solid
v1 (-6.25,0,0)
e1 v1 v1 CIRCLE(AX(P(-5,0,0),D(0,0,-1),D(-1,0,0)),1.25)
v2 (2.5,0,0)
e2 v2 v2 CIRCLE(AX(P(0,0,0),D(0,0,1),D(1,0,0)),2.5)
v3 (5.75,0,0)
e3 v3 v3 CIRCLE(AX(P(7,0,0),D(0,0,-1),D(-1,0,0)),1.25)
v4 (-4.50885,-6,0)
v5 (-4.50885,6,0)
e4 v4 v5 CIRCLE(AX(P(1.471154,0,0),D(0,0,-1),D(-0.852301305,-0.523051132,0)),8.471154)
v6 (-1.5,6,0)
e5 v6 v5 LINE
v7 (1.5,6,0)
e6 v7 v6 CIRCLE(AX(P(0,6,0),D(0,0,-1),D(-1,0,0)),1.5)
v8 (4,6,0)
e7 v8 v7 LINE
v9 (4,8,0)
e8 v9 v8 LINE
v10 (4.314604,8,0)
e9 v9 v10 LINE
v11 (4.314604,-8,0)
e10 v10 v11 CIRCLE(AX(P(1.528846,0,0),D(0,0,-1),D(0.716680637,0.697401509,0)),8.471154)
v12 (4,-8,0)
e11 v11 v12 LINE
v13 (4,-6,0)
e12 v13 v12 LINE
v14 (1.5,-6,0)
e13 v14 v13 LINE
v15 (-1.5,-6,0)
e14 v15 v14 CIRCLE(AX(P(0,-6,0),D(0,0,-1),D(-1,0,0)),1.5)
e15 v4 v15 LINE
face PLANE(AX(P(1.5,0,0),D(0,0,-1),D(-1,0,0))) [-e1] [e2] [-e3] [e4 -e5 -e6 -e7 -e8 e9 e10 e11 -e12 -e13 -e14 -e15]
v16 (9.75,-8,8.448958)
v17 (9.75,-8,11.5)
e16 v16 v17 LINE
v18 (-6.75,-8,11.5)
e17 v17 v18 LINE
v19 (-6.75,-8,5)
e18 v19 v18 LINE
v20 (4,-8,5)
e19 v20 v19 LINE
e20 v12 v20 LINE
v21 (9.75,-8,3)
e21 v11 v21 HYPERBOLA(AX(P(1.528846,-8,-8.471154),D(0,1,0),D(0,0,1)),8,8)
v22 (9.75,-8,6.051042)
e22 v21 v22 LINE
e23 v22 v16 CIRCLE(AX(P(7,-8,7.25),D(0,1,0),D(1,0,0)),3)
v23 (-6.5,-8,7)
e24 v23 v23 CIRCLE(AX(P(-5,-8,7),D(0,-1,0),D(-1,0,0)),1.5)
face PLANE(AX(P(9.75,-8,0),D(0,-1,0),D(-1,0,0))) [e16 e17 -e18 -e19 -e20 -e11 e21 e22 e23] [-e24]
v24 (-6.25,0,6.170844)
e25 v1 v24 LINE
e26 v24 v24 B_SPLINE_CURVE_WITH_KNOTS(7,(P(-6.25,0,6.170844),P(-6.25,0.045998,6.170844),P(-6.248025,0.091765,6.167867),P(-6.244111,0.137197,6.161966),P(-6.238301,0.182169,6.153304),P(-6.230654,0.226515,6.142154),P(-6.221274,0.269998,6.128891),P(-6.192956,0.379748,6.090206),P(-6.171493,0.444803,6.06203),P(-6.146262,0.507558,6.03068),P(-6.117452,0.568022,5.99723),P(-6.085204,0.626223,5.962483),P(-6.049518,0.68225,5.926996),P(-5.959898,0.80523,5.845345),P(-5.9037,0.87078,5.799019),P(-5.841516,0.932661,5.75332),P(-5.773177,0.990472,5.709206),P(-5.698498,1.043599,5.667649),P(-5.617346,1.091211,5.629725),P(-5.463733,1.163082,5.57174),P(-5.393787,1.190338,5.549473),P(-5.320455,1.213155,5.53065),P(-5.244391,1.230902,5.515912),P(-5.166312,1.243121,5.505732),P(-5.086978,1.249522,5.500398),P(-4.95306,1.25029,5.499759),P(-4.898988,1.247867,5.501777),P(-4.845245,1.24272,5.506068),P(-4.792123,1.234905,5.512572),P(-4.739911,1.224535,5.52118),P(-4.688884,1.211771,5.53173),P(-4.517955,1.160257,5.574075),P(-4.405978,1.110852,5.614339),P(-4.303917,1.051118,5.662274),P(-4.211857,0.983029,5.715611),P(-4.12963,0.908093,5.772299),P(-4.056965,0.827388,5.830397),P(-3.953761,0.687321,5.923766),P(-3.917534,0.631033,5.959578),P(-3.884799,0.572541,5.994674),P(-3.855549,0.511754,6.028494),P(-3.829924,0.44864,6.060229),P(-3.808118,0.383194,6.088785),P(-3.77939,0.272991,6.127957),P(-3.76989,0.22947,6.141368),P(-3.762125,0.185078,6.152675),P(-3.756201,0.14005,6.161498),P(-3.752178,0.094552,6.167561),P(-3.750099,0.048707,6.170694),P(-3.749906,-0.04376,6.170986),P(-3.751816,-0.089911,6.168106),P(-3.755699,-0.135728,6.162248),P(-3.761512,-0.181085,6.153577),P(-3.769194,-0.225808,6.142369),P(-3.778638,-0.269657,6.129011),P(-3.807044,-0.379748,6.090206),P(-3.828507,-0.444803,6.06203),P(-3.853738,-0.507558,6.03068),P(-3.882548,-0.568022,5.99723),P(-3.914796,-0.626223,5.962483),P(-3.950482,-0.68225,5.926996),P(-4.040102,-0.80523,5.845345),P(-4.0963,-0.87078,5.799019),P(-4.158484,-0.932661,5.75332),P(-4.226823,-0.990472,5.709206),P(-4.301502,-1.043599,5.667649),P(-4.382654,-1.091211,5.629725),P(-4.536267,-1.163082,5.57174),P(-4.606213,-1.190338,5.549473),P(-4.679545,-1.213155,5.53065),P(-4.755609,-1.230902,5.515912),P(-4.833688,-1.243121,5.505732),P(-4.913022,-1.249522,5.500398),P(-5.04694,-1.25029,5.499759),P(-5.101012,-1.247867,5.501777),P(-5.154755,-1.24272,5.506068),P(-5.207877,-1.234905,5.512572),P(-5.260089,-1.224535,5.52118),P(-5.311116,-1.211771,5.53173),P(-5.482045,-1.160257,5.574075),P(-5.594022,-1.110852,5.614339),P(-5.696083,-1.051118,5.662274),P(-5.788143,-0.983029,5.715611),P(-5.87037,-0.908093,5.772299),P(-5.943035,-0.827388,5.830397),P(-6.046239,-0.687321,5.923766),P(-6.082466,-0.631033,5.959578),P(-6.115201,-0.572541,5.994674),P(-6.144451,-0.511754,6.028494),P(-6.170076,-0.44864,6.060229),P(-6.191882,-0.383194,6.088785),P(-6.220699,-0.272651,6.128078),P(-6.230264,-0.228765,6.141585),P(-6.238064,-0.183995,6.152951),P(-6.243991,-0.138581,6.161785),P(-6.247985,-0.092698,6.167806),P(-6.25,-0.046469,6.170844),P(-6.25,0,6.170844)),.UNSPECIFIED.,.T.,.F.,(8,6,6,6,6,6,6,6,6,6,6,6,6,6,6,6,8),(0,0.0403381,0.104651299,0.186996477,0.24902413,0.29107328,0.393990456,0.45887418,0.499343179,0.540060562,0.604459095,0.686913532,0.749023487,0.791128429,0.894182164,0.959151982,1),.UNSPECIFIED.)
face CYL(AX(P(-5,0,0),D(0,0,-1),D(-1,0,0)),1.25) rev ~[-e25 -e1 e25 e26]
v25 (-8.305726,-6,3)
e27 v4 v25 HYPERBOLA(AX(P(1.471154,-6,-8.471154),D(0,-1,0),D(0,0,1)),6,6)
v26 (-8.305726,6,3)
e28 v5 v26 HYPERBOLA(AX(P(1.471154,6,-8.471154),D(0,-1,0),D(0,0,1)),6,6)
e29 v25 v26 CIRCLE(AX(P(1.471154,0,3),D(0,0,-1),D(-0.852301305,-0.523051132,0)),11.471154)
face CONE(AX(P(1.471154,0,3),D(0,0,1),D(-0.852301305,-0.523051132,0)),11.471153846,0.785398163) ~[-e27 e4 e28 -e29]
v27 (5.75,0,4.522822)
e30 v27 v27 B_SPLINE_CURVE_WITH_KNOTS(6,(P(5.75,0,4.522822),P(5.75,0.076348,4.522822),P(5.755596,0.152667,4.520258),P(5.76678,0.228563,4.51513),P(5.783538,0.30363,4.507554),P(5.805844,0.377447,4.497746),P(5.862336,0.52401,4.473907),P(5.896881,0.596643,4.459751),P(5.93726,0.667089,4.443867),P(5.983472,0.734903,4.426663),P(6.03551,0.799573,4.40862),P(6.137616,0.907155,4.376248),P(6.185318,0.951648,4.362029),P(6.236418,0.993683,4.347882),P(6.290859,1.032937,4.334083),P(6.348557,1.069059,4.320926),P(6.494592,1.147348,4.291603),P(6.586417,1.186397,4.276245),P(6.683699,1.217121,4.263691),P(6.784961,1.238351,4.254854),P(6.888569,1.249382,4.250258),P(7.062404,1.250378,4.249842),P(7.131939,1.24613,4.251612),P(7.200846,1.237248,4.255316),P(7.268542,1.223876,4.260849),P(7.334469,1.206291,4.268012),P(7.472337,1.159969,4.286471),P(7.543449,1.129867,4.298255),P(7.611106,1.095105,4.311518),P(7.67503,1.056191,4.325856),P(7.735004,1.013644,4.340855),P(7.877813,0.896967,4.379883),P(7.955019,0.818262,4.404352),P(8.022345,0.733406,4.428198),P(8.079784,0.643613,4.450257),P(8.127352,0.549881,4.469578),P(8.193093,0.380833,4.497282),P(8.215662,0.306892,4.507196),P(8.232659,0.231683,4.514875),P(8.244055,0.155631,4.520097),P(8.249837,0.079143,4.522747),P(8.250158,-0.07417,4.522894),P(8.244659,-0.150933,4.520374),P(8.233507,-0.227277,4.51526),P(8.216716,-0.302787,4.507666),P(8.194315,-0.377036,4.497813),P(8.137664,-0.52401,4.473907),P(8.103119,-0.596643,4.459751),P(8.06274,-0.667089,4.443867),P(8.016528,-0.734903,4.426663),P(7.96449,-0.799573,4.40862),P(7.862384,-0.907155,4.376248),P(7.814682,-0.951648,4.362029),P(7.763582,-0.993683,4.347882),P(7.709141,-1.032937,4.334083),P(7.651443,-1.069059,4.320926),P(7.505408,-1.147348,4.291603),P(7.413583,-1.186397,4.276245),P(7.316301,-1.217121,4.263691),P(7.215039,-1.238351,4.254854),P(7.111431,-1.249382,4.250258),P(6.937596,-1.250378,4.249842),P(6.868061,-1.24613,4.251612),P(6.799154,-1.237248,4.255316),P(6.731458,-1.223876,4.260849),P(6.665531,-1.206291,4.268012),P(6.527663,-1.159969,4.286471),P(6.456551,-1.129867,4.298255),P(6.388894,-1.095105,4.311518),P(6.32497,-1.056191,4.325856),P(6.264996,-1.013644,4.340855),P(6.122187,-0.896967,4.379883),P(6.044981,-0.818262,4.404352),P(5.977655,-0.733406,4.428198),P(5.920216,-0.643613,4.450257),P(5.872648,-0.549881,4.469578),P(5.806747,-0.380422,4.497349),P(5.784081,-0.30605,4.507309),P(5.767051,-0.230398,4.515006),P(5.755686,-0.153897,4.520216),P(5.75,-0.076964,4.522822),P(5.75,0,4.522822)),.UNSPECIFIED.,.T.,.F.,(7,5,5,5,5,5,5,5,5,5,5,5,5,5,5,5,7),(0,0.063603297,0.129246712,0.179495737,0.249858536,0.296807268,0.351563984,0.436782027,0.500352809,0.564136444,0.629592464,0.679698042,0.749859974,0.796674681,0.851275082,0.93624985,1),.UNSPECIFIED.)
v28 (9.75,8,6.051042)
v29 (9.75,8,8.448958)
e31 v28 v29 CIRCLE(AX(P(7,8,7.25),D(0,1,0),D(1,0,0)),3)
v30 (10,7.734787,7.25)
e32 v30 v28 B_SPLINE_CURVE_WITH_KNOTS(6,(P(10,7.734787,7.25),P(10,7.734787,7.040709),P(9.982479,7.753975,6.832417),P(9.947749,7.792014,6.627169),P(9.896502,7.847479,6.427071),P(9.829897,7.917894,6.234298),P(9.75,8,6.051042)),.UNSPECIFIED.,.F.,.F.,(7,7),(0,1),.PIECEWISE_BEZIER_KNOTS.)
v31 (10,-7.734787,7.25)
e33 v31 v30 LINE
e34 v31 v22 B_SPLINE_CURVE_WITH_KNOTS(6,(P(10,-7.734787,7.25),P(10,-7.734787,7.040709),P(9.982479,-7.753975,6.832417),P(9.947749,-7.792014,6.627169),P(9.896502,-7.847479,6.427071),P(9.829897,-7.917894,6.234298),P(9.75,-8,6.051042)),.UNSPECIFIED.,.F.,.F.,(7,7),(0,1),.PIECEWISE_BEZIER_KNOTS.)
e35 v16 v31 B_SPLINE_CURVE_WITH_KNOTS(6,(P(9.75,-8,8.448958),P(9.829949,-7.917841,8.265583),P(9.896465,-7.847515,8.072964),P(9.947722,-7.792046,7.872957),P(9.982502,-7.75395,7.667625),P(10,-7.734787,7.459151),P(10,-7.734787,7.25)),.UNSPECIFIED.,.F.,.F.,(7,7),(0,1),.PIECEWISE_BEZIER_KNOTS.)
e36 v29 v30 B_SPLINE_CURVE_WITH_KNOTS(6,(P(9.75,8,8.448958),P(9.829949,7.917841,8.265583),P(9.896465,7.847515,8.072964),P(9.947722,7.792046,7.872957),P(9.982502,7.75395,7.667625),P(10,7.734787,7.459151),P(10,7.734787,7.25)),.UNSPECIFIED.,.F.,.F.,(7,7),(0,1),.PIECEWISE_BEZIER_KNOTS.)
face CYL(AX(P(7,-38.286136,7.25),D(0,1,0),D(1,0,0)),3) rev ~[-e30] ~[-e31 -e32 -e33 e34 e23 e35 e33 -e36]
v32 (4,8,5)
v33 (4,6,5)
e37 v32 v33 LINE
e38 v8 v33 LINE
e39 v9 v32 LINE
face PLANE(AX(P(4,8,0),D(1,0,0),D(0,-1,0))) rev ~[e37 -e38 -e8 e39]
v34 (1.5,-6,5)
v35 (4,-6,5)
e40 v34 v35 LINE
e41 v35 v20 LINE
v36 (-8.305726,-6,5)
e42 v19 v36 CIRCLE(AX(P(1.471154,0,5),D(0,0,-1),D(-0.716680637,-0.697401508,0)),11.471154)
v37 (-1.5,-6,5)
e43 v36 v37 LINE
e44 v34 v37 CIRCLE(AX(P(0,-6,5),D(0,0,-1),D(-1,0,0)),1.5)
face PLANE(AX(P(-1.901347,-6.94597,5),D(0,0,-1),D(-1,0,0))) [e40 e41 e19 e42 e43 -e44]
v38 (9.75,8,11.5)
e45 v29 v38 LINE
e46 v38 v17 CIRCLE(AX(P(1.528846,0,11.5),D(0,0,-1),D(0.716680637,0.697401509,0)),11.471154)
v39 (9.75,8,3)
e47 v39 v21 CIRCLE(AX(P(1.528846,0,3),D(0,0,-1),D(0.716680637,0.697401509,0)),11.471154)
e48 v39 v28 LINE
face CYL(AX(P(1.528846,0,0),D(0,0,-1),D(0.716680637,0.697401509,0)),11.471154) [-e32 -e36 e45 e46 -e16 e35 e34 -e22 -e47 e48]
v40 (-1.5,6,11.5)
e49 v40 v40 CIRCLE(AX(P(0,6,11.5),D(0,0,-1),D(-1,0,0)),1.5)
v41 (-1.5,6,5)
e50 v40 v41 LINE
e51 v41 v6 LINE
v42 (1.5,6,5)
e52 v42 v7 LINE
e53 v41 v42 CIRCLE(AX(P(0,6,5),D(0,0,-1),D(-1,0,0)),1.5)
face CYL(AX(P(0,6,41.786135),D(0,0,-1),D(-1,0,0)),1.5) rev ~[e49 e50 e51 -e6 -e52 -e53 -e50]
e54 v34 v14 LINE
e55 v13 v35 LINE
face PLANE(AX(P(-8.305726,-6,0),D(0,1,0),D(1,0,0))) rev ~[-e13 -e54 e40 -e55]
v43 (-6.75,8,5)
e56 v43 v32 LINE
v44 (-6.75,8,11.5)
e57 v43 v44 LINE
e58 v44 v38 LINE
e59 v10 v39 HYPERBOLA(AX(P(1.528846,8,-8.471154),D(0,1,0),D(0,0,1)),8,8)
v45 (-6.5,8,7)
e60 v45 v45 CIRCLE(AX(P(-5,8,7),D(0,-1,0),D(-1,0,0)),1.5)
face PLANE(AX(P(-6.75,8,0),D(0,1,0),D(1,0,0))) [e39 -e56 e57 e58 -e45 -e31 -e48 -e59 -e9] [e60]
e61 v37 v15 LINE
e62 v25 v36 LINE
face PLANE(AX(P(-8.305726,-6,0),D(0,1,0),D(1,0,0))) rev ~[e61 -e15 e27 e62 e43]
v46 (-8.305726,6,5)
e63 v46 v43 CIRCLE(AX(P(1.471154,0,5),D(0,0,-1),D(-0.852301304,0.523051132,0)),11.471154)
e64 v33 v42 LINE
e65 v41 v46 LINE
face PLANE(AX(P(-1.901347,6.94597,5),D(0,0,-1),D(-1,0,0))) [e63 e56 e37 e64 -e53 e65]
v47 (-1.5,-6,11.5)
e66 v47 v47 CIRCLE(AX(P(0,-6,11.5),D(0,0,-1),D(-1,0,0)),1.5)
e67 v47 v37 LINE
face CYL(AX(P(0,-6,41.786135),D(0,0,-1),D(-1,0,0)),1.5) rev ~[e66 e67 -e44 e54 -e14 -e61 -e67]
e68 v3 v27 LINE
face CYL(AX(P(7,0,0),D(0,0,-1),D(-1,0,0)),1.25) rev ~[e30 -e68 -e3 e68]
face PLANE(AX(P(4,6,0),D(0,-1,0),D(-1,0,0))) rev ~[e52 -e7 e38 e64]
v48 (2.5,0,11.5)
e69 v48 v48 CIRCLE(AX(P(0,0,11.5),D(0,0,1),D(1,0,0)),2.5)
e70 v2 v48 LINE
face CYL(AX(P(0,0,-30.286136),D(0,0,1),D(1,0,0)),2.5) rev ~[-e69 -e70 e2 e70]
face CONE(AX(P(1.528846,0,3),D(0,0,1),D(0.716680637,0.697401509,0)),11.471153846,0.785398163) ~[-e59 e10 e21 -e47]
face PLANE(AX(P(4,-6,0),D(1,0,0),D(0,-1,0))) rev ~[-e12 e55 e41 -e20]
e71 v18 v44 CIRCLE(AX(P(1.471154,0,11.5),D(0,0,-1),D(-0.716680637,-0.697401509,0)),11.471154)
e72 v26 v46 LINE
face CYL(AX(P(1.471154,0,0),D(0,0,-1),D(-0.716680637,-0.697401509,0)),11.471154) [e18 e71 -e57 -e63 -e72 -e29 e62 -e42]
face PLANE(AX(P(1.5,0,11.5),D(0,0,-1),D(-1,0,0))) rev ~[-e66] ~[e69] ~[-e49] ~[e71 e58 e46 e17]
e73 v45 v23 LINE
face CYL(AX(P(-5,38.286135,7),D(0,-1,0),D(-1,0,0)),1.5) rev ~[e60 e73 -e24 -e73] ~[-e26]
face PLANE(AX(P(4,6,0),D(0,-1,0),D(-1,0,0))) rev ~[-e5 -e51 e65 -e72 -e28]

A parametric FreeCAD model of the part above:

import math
import FreeCAD as App
import Part
import Sketcher
from FreeCAD import Vector
Q = App.Units.Quantity


def edges_at(feature, points):
    """Names of the edges that pass closest to the given points."""
    edges = feature.Shape.Edges
    near = lambda p: min(range(len(edges)), key=lambda i: edges[i].distToShape(Part.Vertex(*p))[0])
    return sorted({f"Edge{near(p) + 1}" for p in points})

doc = App.newDocument("Part")
body = doc.addObject("PartDesign::Body", "Body")

# Sketch on XY plane
sketch1 = doc.addObject("Sketcher::SketchObject", "Sketch")
body.addObject(sketch1)
sketch1.AttachmentSupport = (doc.XY_Plane, [""])
sketch1.MapMode = "FlatFace"
sketch1.addGeometry(Part.LineSegment(Vector(-7, 8, 0), Vector(10, 8, 0)), False)
sketch1.addGeometry(Part.ArcOfCircle(Part.Circle(Vector(2, 0, 0), Vector(0, 0, 1), 11), math.radians(-44), math.radians(44)), False)
sketch1.addGeometry(Part.LineSegment(Vector(10, -8, 0), Vector(-7, -8, 0)), False)
sketch1.addGeometry(Part.ArcOfCircle(Part.Circle(Vector(1, 0, 0), Vector(0, 0, 1), 11), math.radians(136), math.radians(224)), False)
sketch1.addConstraint(Sketcher.Constraint("Coincident", 0, 2, 1, 2))
sketch1.addConstraint(Sketcher.Constraint("Coincident", 1, 1, 2, 1))
sketch1.addConstraint(Sketcher.Constraint("Coincident", 2, 2, 3, 2))
sketch1.addConstraint(Sketcher.Constraint("Coincident", 3, 1, 0, 1))
sketch1.addConstraint(Sketcher.Constraint("Horizontal", 0))
sketch1.addConstraint(Sketcher.Constraint("Horizontal", 2))
sketch1.addConstraint(Sketcher.Constraint("Equal", 1, 3))
sketch1.addConstraint(Sketcher.Constraint("Symmetric", 0, 2, 1, 1, -1))
sketch1.addConstraint(Sketcher.Constraint("PointOnObject", 3, 3, -1))
sketch1.addConstraint(Sketcher.Constraint("DistanceX", 0, 1, 0, 2, Q("16.5 mm")))
sketch1.addConstraint(Sketcher.Constraint("DistanceY", -1, 1, 0, 2, Q("8 mm")))
sketch1.addConstraint(Sketcher.Constraint("DistanceX", -1, 1, 0, 2, Q("9.75 mm")))
sketch1.addConstraint(Sketcher.Constraint("Radius", 1, Q("11.471154 mm")))
pad1 = doc.addObject("PartDesign::Pad", "Pad")
body.addObject(pad1)
pad1.Profile = sketch1
pad1.Length = 11.5

# Sketch on XY plane
sketch2 = doc.addObject("Sketcher::SketchObject", "Sketch001")
body.addObject(sketch2)
sketch2.AttachmentSupport = (doc.XY_Plane, [""])
sketch2.MapMode = "FlatFace"
sketch2.addGeometry(Part.LineSegment(Vector(4, 6, 0), Vector(-8.3, 6, 0)), False)
sketch2.addGeometry(Part.ArcOfCircle(Part.Circle(Vector(1.5, 0, 0), Vector(0, 0, 1), 11.5), math.radians(135.78), math.radians(148.46)), False)
sketch2.addGeometry(Part.LineSegment(Vector(-6.8, 8, 0), Vector(4, 8, 0)), False)
sketch2.addGeometry(Part.LineSegment(Vector(4, 8, 0), Vector(4, 6, 0)), False)
sketch2.addConstraint(Sketcher.Constraint("Coincident", 0, 2, 1, 2))
sketch2.addConstraint(Sketcher.Constraint("Coincident", 1, 1, 2, 1))
sketch2.addConstraint(Sketcher.Constraint("Coincident", 2, 2, 3, 1))
sketch2.addConstraint(Sketcher.Constraint("Coincident", 3, 2, 0, 1))
sketch2.addConstraint(Sketcher.Constraint("Horizontal", 0))
sketch2.addConstraint(Sketcher.Constraint("Horizontal", 2))
sketch2.addConstraint(Sketcher.Constraint("Vertical", 3))
sketch2.addConstraint(Sketcher.Constraint("PointOnObject", 1, 3, -1))
sketch2.addConstraint(Sketcher.Constraint("DistanceY", 3, 2, 3, 1, Q("2 mm")))
sketch2.addConstraint(Sketcher.Constraint("DistanceY", -1, 1, 0, 2, Q("6 mm")))
sketch2.addConstraint(Sketcher.Constraint("DistanceX", -1, 1, 2, 2, Q("4 mm")))
sketch2.addConstraint(Sketcher.Constraint("DistanceX", 2, 1, 2, 2, Q("10.75 mm")))
sketch2.addConstraint(Sketcher.Constraint("Radius", 1, Q("11.471154 mm")))
pocket1 = doc.addObject("PartDesign::Pocket", "Pocket")
body.addObject(pocket1)
pocket1.Profile = sketch2
pocket1.Length = 5
pocket1.Reversed = True

# Sketch on XY plane
sketch3 = doc.addObject("Sketcher::SketchObject", "Sketch002")
body.addObject(sketch3)
sketch3.AttachmentSupport = (doc.XY_Plane, [""])
sketch3.MapMode = "FlatFace"
sketch3.addGeometry(Part.LineSegment(Vector(-8.3, -6, 0), Vector(4, -6, 0)), False)
sketch3.addGeometry(Part.LineSegment(Vector(4, -6, 0), Vector(4, -8, 0)), False)
sketch3.addGeometry(Part.LineSegment(Vector(4, -8, 0), Vector(-6.8, -8, 0)), False)
sketch3.addGeometry(Part.ArcOfCircle(Part.Circle(Vector(1.5, 0, 0), Vector(0, 0, 1), 11.5), math.radians(-148.46), math.radians(-135.78)), False)
sketch3.addConstraint(Sketcher.Constraint("Coincident", 0, 2, 1, 1))
sketch3.addConstraint(Sketcher.Constraint("Coincident", 1, 2, 2, 1))
sketch3.addConstraint(Sketcher.Constraint("Coincident", 2, 2, 3, 2))
sketch3.addConstraint(Sketcher.Constraint("Coincident", 3, 1, 0, 1))
sketch3.addConstraint(Sketcher.Constraint("Horizontal", 0))
sketch3.addConstraint(Sketcher.Constraint("Vertical", 1))
sketch3.addConstraint(Sketcher.Constraint("Horizontal", 2))
sketch3.addConstraint(Sketcher.Constraint("PointOnObject", 3, 3, -1))
sketch3.addConstraint(Sketcher.Constraint("DistanceY", 1, 2, 1, 1, Q("2 mm")))
sketch3.addConstraint(Sketcher.Constraint("DistanceX", -1, 1, 0, 2, Q("4 mm")))
sketch3.addConstraint(Sketcher.Constraint("DistanceY", 0, 2, -1, 1, Q("6 mm")))
sketch3.addConstraint(Sketcher.Constraint("DistanceX", 2, 2, 2, 1, Q("10.75 mm")))
sketch3.addConstraint(Sketcher.Constraint("Radius", 3, Q("11.471154 mm")))
pocket2 = doc.addObject("PartDesign::Pocket", "Pocket001")
body.addObject(pocket2)
pocket2.Profile = sketch3
pocket2.Length = 5
pocket2.Reversed = True

# Sketch on XY plane
sketch4 = doc.addObject("Sketcher::SketchObject", "Sketch003")
body.addObject(sketch4)
sketch4.AttachmentSupport = (doc.XY_Plane, [""])
sketch4.MapMode = "FlatFace"
sketch4.AttachmentOffset = App.Placement(Vector(0, 0, 11.5), App.Rotation())
sketch4.addGeometry(Part.Circle(Vector(0, -6, 0), Vector(0, 0, 1), 1.5), False)
sketch4.addGeometry(Part.Circle(Vector(0, 6, 0), Vector(0, 0, 1), 1.5), False)
sketch4.addConstraint(Sketcher.Constraint("Equal", 0, 1))
sketch4.addConstraint(Sketcher.Constraint("Symmetric", 0, 3, 1, 3, -1, 1))
sketch4.addConstraint(Sketcher.Constraint("PointOnObject", 0, 3, -2))
sketch4.addConstraint(Sketcher.Constraint("Diameter", 0, Q("3 mm")))
sketch4.addConstraint(Sketcher.Constraint("DistanceY", 0, 3, -1, 1, Q("6 mm")))
doc.recompute()
hole = doc.addObject("PartDesign::Hole", "Hole")
body.addObject(hole)
hole.Profile = sketch4
hole.ThreadType = "None"
hole.Diameter = 3
hole.DepthType = "ThroughAll"

# Sketch on XZ plane
sketch5 = doc.addObject("Sketcher::SketchObject", "Sketch004")
body.addObject(sketch5)
sketch5.AttachmentSupport = (doc.XZ_Plane, [""])
sketch5.MapMode = "FlatFace"
sketch5.AttachmentOffset = App.Placement(Vector(0, 0, -8), App.Rotation())
sketch5.addGeometry(Part.Circle(Vector(-5, 7, 0), Vector(0, 0, 1), 1.5), False)
sketch5.addConstraint(Sketcher.Constraint("Diameter", 0, Q("3 mm")))
sketch5.addConstraint(Sketcher.Constraint("DistanceX", 0, 3, -1, 1, Q("5 mm")))
sketch5.addConstraint(Sketcher.Constraint("DistanceY", -1, 1, 0, 3, Q("7 mm")))
doc.recompute()
hole2 = doc.addObject("PartDesign::Hole", "Hole001")
body.addObject(hole2)
hole2.Profile = sketch5
hole2.ThreadType = "None"
hole2.Diameter = 3
hole2.DepthType = "ThroughAll"
hole2.Reversed = True

# Sketch on XY plane
sketch6 = doc.addObject("Sketcher::SketchObject", "Sketch005")
body.addObject(sketch6)
sketch6.AttachmentSupport = (doc.XY_Plane, [""])
sketch6.MapMode = "FlatFace"
sketch6.addGeometry(Part.Circle(Vector(-5, 0, 0), Vector(0, 0, 1), 1.2), False)
sketch6.addConstraint(Sketcher.Constraint("PointOnObject", 0, 3, -1))
sketch6.addConstraint(Sketcher.Constraint("Diameter", 0, Q("2.5 mm")))
sketch6.addConstraint(Sketcher.Constraint("DistanceX", 0, 3, -1, 1, Q("5 mm")))
pocket3 = doc.addObject("PartDesign::Pocket", "Pocket002")
body.addObject(pocket3)
pocket3.Profile = sketch6
pocket3.Type = "UpToFirst"
pocket3.Reversed = True

# Sketch on XY plane
sketch7 = doc.addObject("Sketcher::SketchObject", "Sketch006")
body.addObject(sketch7)
sketch7.AttachmentSupport = (doc.XY_Plane, [""])
sketch7.MapMode = "FlatFace"
sketch7.addGeometry(Part.Circle(Vector(0, 0, 0), Vector(0, 0, 1), 2.5), False)
sketch7.addConstraint(Sketcher.Constraint("Coincident", 0, 3, -1, 1))
sketch7.addConstraint(Sketcher.Constraint("Diameter", 0, Q("5 mm")))
doc.recompute()
hole3 = doc.addObject("PartDesign::Hole", "Hole002")
body.addObject(hole3)
hole3.Profile = sketch7
hole3.ThreadType = "None"
hole3.Diameter = 5
hole3.DepthType = "ThroughAll"
hole3.Reversed = True

# Sketch on XZ plane
sketch8 = doc.addObject("Sketcher::SketchObject", "Sketch007")
body.addObject(sketch8)
sketch8.AttachmentSupport = (doc.XZ_Plane, [""])
sketch8.MapMode = "FlatFace"
sketch8.AttachmentOffset = App.Placement(Vector(0, 0, 8), App.Rotation())
sketch8.addGeometry(Part.Circle(Vector(7, 7.2, 0), Vector(0, 0, 1), 3), False)
sketch8.addConstraint(Sketcher.Constraint("Diameter", 0, Q("6 mm")))
sketch8.addConstraint(Sketcher.Constraint("DistanceX", -1, 1, 0, 3, Q("7 mm")))
sketch8.addConstraint(Sketcher.Constraint("DistanceY", -1, 1, 0, 3, Q("7.25 mm")))
doc.recompute()
hole4 = doc.addObject("PartDesign::Hole", "Hole003")
body.addObject(hole4)
hole4.Profile = sketch8
hole4.ThreadType = "None"
hole4.Diameter = 6
hole4.DepthType = "ThroughAll"

# Sketch on XY plane
sketch9 = doc.addObject("Sketcher::SketchObject", "Sketch008")
body.addObject(sketch9)
sketch9.AttachmentSupport = (doc.XY_Plane, [""])
sketch9.MapMode = "FlatFace"
sketch9.addGeometry(Part.Circle(Vector(7, 0, 0), Vector(0, 0, 1), 1.2), False)
sketch9.addConstraint(Sketcher.Constraint("PointOnObject", 0, 3, -1))
sketch9.addConstraint(Sketcher.Constraint("Diameter", 0, Q("2.5 mm")))
sketch9.addConstraint(Sketcher.Constraint("DistanceX", -1, 1, 0, 3, Q("7 mm")))
pocket4 = doc.addObject("PartDesign::Pocket", "Pocket003")
body.addObject(pocket4)
pocket4.Profile = sketch9
pocket4.Type = "UpToFirst"
pocket4.Reversed = True
doc.recompute()

chamfer = doc.addObject("PartDesign::Chamfer", "Chamfer")
body.addObject(chamfer)
chamfer.Base = (pocket4, edges_at(pocket4, [(-10, 0, 0), (13, 0, 0)]))
chamfer.Size = 3

doc.recompute()
